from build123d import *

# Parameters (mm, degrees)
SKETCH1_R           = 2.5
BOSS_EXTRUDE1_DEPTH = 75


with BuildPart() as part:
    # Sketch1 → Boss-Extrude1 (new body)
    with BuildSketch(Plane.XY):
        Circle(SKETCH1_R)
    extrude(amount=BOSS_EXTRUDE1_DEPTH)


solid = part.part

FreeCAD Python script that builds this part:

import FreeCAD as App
import Part
import Sketcher

V = App.Vector
Q = App.Units.Quantity

doc = App.newDocument("Part")
body = doc.addObject("PartDesign::Body", "Body")

sketch1 = body.newObject("Sketcher::SketchObject", "Sketch")
sketch1.AttachmentSupport = (doc.getObject("XY_Plane"), [""])
sketch1.MapMode = "FlatFace"
sketch1.addGeometry(Part.Circle(V(0, 0, 0), V(0, 0, 1), 2.5), False)
sketch1.addConstraint([
    Sketcher.Constraint("Coincident", 0, 3, -1, 1),
    Sketcher.Constraint("Diameter", 0, Q("5 mm")),
])
pad1 = body.newObject("PartDesign::Pad", "Pad")
pad1.Profile = sketch1
pad1.Length = 75

doc.recompute()
